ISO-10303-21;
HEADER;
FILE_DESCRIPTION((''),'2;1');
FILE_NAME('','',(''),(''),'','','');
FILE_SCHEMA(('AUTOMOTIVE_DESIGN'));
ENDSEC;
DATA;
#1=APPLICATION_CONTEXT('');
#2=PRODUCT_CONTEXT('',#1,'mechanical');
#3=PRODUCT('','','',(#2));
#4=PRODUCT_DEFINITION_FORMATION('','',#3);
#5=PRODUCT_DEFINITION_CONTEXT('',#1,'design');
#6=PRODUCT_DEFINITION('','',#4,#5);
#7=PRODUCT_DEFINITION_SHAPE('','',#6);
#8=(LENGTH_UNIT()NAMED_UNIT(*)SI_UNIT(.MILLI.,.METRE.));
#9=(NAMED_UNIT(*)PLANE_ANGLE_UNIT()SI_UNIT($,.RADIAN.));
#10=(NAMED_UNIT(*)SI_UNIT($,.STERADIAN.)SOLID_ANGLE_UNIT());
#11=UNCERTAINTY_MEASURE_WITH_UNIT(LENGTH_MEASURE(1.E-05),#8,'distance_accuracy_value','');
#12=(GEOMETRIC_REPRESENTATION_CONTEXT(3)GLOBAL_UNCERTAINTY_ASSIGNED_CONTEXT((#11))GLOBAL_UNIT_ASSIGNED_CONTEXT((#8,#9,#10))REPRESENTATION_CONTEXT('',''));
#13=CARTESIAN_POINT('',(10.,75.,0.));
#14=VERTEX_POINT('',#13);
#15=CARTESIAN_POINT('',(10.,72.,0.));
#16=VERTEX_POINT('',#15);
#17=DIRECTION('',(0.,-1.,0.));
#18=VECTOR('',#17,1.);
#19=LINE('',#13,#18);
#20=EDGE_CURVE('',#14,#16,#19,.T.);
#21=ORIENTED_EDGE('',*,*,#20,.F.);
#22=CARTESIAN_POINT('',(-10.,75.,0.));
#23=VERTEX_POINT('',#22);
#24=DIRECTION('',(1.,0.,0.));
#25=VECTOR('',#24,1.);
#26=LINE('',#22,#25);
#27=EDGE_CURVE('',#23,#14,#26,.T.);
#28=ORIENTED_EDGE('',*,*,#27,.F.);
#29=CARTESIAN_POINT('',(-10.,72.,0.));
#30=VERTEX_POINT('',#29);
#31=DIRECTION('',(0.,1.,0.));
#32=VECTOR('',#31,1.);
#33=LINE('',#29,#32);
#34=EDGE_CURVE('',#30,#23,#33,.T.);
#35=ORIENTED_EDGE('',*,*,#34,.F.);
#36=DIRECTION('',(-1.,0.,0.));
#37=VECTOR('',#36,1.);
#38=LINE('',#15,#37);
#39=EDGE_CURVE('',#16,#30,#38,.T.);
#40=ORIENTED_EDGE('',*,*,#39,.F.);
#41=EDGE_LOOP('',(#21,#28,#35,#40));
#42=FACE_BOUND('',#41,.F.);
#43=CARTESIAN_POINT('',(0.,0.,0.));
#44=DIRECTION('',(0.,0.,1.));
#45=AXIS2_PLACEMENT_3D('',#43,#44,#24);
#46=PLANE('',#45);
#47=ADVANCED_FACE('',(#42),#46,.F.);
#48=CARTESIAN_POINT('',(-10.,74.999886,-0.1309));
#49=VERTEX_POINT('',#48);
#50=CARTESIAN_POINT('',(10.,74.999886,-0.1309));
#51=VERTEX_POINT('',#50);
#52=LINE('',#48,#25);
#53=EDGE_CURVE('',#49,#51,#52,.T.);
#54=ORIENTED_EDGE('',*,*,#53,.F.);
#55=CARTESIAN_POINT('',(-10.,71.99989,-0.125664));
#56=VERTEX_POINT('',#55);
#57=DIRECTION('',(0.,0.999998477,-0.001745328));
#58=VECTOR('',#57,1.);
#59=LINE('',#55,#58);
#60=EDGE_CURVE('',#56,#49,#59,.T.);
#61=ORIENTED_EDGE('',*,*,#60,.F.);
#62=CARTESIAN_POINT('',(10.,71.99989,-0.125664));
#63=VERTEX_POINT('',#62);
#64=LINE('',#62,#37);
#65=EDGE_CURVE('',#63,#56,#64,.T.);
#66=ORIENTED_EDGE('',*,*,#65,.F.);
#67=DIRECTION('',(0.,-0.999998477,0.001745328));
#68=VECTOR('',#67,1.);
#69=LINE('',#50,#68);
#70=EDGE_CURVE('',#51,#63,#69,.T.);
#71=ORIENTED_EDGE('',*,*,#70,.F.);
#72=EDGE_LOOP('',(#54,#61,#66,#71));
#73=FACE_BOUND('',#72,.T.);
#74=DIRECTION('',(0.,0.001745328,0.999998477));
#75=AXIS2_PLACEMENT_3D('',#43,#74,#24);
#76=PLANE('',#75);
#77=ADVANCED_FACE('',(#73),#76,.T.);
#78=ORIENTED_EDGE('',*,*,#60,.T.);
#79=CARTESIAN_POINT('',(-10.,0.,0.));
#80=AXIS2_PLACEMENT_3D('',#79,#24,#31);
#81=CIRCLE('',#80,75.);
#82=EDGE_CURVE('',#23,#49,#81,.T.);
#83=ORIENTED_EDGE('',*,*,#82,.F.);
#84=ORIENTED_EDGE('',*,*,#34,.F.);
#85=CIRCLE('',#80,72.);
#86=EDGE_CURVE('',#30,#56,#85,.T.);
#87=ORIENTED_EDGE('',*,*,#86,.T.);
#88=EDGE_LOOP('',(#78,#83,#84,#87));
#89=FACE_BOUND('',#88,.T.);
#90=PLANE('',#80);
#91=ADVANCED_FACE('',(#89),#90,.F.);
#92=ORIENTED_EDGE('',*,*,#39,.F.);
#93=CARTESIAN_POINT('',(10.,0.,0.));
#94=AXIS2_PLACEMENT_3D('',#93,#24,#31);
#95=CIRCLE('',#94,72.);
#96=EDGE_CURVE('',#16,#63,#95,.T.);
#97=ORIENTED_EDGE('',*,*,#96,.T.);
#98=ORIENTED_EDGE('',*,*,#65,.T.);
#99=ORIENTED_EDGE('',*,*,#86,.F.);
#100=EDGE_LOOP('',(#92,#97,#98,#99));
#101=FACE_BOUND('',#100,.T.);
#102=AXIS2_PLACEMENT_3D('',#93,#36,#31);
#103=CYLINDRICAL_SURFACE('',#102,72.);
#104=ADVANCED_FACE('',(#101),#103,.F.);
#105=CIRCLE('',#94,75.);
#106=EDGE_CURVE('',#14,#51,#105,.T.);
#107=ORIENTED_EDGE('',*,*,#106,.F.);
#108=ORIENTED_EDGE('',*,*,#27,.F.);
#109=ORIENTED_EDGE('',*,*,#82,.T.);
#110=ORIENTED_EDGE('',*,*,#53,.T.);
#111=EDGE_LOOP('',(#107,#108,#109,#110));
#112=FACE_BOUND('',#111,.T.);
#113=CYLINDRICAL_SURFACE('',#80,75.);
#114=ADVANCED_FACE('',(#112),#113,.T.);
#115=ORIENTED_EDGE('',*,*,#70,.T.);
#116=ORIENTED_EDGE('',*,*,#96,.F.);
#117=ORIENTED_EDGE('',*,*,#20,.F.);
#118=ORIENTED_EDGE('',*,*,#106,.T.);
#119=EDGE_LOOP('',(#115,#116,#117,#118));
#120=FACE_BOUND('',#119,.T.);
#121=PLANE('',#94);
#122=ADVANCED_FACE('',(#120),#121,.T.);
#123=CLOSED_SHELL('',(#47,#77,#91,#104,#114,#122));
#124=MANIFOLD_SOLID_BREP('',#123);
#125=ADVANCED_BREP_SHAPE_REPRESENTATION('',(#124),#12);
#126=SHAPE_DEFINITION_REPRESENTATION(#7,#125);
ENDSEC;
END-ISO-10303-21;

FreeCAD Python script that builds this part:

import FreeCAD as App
import Part
import Sketcher

V = App.Vector
Q = App.Units.Quantity

doc = App.newDocument("Part")
params = doc.addObject("Spreadsheet::Sheet", "Params")
for row, (alias, value) in enumerate([
    ("sketch1_width", "20 mm"),
    ("sketch1_height", "3 mm"),
    ("revolution_angle", "359.9 deg"),
], start=1):
    params.set(f"A{row}", alias)
    params.set(f"B{row}", "=" + value)
    params.setAlias(f"B{row}", alias)

body = doc.addObject("PartDesign::Body", "Body")

# Sketch on XY plane
sketch1 = body.newObject("Sketcher::SketchObject", "Sketch")
sketch1.AttachmentSupport = (doc.getObject("XY_Plane"), [""])
sketch1.MapMode = "FlatFace"
sketch1.addGeometry(Part.LineSegment(V(10, 75, 0), V(-10, 75, 0)), False)
sketch1.addGeometry(Part.LineSegment(V(-10, 75, 0), V(-10, 72, 0)), False)
sketch1.addGeometry(Part.LineSegment(V(-10, 72, 0), V(10, 72, 0)), False)
sketch1.addGeometry(Part.LineSegment(V(10, 72, 0), V(10, 75, 0)), False)
sketch1.addConstraint(Sketcher.Constraint("Coincident", 0, 2, 1, 1))
sketch1.addConstraint(Sketcher.Constraint("Coincident", 1, 2, 2, 1))
sketch1.addConstraint(Sketcher.Constraint("Coincident", 2, 2, 3, 1))
sketch1.addConstraint(Sketcher.Constraint("Coincident", 3, 2, 0, 1))
sketch1.addConstraint(Sketcher.Constraint("Horizontal", 0))
sketch1.addConstraint(Sketcher.Constraint("Vertical", 1))
sketch1.addConstraint(Sketcher.Constraint("Horizontal", 2))
sketch1.addConstraint(Sketcher.Constraint("Vertical", 3))
sketch1.addConstraint(Sketcher.Constraint("DistanceX", 0, 2, 0, 1, Q("20 mm")))
sketch1.addConstraint(Sketcher.Constraint("DistanceY", 1, 2, 1, 1, Q("3 mm")))
sketch1.addConstraint(Sketcher.Constraint("DistanceY", -1, 1, 0, 2, Q("75 mm")))
sketch1.addConstraint(Sketcher.Constraint("DistanceX", 0, 2, -1, 1, Q("10 mm")))
sketch1.setExpression("Constraints[8]", "Params.sketch1_width")
sketch1.setExpression("Constraints[9]", "Params.sketch1_height")
revolution = body.newObject("PartDesign::Revolution", "Revolution")
revolution.Profile = sketch1
revolution.ReferenceAxis = (sketch1, ["H_Axis"])
revolution.setExpression("Angle", "Params.revolution_angle")

doc.recompute()
